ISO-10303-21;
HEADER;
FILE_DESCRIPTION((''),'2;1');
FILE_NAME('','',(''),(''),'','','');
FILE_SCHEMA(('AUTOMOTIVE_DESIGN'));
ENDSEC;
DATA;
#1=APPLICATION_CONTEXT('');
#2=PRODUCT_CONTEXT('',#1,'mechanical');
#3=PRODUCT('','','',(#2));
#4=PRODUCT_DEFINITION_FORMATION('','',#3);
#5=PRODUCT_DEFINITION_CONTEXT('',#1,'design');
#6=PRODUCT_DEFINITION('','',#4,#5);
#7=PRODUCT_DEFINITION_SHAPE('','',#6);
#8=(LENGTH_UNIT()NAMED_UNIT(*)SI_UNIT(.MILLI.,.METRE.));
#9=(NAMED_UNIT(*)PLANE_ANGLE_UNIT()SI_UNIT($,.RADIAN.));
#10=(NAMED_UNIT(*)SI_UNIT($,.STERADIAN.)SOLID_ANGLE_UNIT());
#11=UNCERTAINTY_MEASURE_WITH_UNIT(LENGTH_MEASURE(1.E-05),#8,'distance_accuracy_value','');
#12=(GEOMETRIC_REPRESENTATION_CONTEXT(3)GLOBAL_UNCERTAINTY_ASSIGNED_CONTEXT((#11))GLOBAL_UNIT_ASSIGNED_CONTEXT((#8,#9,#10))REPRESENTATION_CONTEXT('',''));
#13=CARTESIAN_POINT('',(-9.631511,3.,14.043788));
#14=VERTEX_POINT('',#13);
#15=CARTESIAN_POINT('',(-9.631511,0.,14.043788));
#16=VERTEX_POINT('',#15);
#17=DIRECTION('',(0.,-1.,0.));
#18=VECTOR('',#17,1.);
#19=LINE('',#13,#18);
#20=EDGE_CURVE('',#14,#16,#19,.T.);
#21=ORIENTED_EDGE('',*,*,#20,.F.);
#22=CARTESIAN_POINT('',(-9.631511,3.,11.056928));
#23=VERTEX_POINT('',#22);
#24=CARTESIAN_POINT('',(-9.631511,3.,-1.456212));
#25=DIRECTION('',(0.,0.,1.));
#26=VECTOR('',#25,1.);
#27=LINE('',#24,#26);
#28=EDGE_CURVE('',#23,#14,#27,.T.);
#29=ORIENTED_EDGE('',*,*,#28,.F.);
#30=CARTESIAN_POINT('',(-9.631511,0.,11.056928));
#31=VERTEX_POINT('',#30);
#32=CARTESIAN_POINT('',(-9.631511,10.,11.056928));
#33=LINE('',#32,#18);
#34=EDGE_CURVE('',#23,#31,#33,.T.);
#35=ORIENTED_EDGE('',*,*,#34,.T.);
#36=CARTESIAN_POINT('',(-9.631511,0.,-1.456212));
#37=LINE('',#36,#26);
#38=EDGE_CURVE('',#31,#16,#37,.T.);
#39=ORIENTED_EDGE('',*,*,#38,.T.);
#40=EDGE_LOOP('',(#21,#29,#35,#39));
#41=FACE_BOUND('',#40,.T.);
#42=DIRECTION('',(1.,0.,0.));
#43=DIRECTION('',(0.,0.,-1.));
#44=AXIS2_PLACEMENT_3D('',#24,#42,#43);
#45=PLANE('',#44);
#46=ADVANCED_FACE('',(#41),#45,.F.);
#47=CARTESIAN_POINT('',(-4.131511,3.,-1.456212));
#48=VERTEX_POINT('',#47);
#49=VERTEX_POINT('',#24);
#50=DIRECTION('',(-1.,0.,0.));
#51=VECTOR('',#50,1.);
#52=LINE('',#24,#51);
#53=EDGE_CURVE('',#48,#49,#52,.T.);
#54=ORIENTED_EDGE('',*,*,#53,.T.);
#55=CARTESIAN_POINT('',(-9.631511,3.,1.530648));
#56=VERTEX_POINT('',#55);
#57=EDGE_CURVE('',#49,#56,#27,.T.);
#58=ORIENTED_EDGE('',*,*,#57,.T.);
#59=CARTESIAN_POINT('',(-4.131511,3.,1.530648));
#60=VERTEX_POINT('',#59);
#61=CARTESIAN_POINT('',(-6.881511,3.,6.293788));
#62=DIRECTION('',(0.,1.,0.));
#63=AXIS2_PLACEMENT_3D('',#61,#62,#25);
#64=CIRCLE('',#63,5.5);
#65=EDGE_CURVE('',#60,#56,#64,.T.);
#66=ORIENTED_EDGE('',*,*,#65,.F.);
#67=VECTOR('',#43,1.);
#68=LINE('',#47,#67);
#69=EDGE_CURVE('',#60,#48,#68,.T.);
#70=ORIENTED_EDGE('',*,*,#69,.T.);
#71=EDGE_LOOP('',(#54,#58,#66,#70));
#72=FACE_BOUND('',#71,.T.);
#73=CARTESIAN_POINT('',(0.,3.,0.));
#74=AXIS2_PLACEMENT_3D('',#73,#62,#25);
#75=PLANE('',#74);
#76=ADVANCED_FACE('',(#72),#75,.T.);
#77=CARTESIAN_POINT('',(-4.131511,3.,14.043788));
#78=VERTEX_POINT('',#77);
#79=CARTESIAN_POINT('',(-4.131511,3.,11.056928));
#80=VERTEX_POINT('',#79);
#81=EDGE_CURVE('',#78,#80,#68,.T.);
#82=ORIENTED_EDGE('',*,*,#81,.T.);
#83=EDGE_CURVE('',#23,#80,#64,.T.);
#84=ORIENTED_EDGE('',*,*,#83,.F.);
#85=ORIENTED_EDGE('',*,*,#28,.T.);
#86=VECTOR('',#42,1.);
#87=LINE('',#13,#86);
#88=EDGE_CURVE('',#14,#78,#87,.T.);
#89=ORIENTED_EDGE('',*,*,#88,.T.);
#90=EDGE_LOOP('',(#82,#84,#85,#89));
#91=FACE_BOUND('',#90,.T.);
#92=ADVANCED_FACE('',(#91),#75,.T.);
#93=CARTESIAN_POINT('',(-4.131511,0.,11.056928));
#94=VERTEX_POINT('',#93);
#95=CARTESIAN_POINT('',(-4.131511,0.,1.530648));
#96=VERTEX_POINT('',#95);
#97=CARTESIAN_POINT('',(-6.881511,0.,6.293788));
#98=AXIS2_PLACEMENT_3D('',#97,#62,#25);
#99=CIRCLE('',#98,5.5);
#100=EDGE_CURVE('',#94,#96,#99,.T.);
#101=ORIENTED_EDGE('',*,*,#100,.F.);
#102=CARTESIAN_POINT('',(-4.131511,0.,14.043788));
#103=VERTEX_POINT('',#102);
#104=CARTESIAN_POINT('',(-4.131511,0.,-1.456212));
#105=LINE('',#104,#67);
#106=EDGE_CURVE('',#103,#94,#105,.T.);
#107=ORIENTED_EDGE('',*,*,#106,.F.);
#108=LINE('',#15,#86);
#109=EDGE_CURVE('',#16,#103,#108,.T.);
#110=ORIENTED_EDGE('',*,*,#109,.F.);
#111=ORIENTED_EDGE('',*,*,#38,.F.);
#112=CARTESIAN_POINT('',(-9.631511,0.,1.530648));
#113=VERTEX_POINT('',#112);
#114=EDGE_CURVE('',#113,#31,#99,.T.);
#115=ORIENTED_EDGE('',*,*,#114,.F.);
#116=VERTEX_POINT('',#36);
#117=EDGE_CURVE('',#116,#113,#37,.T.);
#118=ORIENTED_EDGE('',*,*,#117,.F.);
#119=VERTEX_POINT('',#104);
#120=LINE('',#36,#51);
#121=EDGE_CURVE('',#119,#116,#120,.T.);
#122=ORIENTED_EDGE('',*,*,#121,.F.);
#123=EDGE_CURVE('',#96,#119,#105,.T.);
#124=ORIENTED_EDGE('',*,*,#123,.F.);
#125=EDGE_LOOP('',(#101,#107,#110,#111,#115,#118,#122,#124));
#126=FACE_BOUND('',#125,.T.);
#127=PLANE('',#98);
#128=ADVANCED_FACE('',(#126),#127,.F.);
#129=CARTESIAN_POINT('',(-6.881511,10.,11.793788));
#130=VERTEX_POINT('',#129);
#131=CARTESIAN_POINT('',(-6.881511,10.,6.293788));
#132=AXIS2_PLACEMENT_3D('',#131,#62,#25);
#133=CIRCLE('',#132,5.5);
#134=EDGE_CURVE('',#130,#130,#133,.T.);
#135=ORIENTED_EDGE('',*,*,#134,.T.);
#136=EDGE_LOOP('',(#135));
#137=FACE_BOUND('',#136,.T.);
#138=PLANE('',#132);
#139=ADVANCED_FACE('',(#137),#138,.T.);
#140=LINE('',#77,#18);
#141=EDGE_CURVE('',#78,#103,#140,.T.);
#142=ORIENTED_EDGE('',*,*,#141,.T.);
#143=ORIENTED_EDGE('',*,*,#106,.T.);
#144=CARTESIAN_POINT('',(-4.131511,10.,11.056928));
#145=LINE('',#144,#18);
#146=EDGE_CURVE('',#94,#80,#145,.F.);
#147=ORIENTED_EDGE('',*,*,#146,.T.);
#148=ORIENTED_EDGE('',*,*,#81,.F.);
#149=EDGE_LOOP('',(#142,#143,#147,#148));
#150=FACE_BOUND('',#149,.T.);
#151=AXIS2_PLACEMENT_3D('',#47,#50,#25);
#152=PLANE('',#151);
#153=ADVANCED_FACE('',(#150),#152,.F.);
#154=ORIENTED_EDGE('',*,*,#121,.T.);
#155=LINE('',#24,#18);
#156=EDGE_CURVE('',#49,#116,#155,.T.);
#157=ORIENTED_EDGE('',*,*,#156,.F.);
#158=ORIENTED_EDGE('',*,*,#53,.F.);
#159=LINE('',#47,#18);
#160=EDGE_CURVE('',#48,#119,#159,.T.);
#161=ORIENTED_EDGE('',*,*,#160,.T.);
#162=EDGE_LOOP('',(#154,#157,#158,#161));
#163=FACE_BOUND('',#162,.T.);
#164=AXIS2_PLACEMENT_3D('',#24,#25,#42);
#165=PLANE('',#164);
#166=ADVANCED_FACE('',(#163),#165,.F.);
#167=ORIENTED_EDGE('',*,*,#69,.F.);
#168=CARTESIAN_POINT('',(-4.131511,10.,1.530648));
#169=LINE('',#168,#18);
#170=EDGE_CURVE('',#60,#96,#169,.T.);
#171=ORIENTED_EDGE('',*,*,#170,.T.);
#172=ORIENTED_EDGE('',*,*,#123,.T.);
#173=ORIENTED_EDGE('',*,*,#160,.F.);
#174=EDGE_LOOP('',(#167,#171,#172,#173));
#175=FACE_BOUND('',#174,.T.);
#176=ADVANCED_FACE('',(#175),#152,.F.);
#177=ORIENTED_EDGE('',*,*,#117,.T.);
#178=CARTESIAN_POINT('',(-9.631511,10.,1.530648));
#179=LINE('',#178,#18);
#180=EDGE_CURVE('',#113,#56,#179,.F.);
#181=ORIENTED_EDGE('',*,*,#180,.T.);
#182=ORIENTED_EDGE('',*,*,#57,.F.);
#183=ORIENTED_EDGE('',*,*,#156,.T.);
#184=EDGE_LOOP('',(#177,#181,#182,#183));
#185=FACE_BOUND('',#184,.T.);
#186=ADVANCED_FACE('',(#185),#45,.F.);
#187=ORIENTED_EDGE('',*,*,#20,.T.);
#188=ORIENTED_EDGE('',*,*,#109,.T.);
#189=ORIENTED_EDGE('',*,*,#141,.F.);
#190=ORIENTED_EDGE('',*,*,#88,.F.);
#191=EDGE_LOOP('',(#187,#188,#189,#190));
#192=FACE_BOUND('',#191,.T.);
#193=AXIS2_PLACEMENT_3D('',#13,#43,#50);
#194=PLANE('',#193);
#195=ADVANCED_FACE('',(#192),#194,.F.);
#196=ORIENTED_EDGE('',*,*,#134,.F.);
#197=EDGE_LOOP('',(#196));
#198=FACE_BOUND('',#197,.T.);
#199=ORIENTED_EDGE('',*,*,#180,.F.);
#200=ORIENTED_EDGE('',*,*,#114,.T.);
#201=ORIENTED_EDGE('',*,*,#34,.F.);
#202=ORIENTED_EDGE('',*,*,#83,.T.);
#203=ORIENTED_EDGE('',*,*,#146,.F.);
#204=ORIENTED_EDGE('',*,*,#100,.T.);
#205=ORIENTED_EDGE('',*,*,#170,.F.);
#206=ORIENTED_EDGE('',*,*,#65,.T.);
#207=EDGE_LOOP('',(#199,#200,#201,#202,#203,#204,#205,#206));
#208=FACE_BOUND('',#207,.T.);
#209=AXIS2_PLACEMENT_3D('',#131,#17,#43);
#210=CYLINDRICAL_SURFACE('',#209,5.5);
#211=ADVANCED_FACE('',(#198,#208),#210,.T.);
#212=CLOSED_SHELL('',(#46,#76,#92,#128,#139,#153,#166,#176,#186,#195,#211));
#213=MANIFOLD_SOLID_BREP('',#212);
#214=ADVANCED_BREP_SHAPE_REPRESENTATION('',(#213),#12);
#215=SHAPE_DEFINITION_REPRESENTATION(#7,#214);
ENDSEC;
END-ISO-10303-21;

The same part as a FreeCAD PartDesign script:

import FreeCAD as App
import Part
import Sketcher
Q = App.Units.Quantity


def add_polygon(sketch, points):
    """Adds a closed chain of lines whose ends are joined by coincident constraints."""
    first, n = sketch.GeometryCount, len(points)
    for a, b in zip(points, points[1:] + points[:1]):
        sketch.addGeometry(Part.LineSegment(App.Vector(*a, 0), App.Vector(*b, 0)), False)
    for i in range(n):
        sketch.addConstraint(Sketcher.Constraint("Coincident", first + i, 2, first + (i + 1) % n, 1))

doc = App.newDocument("Part")
params = doc.addObject("Spreadsheet::Sheet", "Params")
for row, (alias, value) in enumerate([
    ("sketch1_diameter", "11 mm"),
    ("pad1_length", "10 mm"),
    ("sketch2_width", "5.5 mm"),
    ("sketch2_height", "15.5 mm"),
    ("pad2_length", "3 mm"),
], start=1):
    params.set(f"A{row}", alias)
    params.set(f"B{row}", "=" + value)
    params.setAlias(f"B{row}", alias)

body = doc.addObject("PartDesign::Body", "Body")

# Sketch on XZ plane
sketch1 = body.newObject("Sketcher::SketchObject", "Sketch")
sketch1.AttachmentSupport = (doc.getObject("XZ_Plane"), [""])
sketch1.MapMode = "FlatFace"
sketch1.addGeometry(Part.Circle(App.Vector(-7, 6, 0), App.Vector(0, 0, 1), 6), False)
sketch1.addConstraint([
    Sketcher.Constraint("Diameter", 0, Q("11 mm")),
    Sketcher.Constraint("DistanceX", 0, 3, -1, 1, Q("6.881511 mm")),
    Sketcher.Constraint("DistanceY", -1, 1, 0, 3, Q("6.293788 mm")),
])
sketch1.setExpression("Constraints[0]", "Params.sketch1_diameter")
pad1 = body.newObject("PartDesign::Pad", "Pad")
pad1.Profile = sketch1
pad1.setExpression("Length", "Params.pad1_length")
pad1.Reversed = True

# Sketch on XZ plane
sketch2 = body.newObject("Sketcher::SketchObject", "Sketch001")
sketch2.AttachmentSupport = (doc.getObject("XZ_Plane"), [""])
sketch2.MapMode = "FlatFace"
add_polygon(sketch2, [(-10, -1), (-10, 14), (-4, 14), (-4, -1)])  # lines 0-3
sketch2.addConstraint([
    Sketcher.Constraint("Vertical", 0),
    Sketcher.Constraint("Horizontal", 1),
    Sketcher.Constraint("Vertical", 2),
    Sketcher.Constraint("Horizontal", 3),
    Sketcher.Constraint("DistanceX", 1, 1, 1, 2, Q("5.5 mm")),
    Sketcher.Constraint("DistanceY", 0, 1, 0, 2, Q("15.5 mm")),
    Sketcher.Constraint("DistanceX", 0, 2, -1, 1, Q("9.631511 mm")),
    Sketcher.Constraint("DistanceY", -1, 1, 0, 2, Q("14.043788 mm")),
])
sketch2.setExpression("Constraints[8]", "Params.sketch2_width")
sketch2.setExpression("Constraints[9]", "Params.sketch2_height")
pad2 = body.newObject("PartDesign::Pad", "Pad001")
pad2.Profile = sketch2
pad2.setExpression("Length", "Params.pad2_length")
pad2.Reversed = True

doc.recompute()
